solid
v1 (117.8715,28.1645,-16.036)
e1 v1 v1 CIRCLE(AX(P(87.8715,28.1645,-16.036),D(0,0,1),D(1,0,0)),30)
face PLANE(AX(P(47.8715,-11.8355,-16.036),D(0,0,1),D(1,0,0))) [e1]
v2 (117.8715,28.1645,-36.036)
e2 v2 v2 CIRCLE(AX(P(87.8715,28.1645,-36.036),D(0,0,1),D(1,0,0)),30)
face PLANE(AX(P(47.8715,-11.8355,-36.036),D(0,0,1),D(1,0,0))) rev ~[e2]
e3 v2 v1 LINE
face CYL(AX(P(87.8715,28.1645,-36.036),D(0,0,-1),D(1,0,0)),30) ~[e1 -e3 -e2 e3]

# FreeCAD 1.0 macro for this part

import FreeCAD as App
import Part
import Sketcher

V = App.Vector
Q = App.Units.Quantity

doc = App.newDocument("Part")
params = doc.addObject("Spreadsheet::Sheet", "Params")
for row, (alias, value) in enumerate([
    ("sketch1_diameter", "60 mm"),
    ("pad1_length", "20 mm"),
], start=1):
    params.set(f"A{row}", alias)
    params.set(f"B{row}", "=" + value)
    params.setAlias(f"B{row}", alias)

body = doc.addObject("PartDesign::Body", "Body")

# Sketch on XY plane
sketch1 = doc.addObject("Sketcher::SketchObject", "Sketch")
body.addObject(sketch1)
sketch1.AttachmentSupport = (doc.XY_Plane, [""])
sketch1.MapMode = "FlatFace"
sketch1.AttachmentOffset = App.Placement(V(0, 0, -36.036), App.Rotation())
sketch1.addGeometry(Part.Circle(V(88, 28, 0), V(0, 0, 1), 30), False)
sketch1.addConstraint(Sketcher.Constraint("Diameter", 0, Q("60 mm")))
sketch1.addConstraint(Sketcher.Constraint("DistanceX", -1, 1, 0, 3, Q("87.8715 mm")))
sketch1.addConstraint(Sketcher.Constraint("DistanceY", -1, 1, 0, 3, Q("28.1645 mm")))
sketch1.setExpression("Constraints[0]", "Params.sketch1_diameter")
pad1 = doc.addObject("PartDesign::Pad", "Pad")
body.addObject(pad1)
pad1.Profile = sketch1
pad1.setExpression("Length", "Params.pad1_length")

doc.recompute()
